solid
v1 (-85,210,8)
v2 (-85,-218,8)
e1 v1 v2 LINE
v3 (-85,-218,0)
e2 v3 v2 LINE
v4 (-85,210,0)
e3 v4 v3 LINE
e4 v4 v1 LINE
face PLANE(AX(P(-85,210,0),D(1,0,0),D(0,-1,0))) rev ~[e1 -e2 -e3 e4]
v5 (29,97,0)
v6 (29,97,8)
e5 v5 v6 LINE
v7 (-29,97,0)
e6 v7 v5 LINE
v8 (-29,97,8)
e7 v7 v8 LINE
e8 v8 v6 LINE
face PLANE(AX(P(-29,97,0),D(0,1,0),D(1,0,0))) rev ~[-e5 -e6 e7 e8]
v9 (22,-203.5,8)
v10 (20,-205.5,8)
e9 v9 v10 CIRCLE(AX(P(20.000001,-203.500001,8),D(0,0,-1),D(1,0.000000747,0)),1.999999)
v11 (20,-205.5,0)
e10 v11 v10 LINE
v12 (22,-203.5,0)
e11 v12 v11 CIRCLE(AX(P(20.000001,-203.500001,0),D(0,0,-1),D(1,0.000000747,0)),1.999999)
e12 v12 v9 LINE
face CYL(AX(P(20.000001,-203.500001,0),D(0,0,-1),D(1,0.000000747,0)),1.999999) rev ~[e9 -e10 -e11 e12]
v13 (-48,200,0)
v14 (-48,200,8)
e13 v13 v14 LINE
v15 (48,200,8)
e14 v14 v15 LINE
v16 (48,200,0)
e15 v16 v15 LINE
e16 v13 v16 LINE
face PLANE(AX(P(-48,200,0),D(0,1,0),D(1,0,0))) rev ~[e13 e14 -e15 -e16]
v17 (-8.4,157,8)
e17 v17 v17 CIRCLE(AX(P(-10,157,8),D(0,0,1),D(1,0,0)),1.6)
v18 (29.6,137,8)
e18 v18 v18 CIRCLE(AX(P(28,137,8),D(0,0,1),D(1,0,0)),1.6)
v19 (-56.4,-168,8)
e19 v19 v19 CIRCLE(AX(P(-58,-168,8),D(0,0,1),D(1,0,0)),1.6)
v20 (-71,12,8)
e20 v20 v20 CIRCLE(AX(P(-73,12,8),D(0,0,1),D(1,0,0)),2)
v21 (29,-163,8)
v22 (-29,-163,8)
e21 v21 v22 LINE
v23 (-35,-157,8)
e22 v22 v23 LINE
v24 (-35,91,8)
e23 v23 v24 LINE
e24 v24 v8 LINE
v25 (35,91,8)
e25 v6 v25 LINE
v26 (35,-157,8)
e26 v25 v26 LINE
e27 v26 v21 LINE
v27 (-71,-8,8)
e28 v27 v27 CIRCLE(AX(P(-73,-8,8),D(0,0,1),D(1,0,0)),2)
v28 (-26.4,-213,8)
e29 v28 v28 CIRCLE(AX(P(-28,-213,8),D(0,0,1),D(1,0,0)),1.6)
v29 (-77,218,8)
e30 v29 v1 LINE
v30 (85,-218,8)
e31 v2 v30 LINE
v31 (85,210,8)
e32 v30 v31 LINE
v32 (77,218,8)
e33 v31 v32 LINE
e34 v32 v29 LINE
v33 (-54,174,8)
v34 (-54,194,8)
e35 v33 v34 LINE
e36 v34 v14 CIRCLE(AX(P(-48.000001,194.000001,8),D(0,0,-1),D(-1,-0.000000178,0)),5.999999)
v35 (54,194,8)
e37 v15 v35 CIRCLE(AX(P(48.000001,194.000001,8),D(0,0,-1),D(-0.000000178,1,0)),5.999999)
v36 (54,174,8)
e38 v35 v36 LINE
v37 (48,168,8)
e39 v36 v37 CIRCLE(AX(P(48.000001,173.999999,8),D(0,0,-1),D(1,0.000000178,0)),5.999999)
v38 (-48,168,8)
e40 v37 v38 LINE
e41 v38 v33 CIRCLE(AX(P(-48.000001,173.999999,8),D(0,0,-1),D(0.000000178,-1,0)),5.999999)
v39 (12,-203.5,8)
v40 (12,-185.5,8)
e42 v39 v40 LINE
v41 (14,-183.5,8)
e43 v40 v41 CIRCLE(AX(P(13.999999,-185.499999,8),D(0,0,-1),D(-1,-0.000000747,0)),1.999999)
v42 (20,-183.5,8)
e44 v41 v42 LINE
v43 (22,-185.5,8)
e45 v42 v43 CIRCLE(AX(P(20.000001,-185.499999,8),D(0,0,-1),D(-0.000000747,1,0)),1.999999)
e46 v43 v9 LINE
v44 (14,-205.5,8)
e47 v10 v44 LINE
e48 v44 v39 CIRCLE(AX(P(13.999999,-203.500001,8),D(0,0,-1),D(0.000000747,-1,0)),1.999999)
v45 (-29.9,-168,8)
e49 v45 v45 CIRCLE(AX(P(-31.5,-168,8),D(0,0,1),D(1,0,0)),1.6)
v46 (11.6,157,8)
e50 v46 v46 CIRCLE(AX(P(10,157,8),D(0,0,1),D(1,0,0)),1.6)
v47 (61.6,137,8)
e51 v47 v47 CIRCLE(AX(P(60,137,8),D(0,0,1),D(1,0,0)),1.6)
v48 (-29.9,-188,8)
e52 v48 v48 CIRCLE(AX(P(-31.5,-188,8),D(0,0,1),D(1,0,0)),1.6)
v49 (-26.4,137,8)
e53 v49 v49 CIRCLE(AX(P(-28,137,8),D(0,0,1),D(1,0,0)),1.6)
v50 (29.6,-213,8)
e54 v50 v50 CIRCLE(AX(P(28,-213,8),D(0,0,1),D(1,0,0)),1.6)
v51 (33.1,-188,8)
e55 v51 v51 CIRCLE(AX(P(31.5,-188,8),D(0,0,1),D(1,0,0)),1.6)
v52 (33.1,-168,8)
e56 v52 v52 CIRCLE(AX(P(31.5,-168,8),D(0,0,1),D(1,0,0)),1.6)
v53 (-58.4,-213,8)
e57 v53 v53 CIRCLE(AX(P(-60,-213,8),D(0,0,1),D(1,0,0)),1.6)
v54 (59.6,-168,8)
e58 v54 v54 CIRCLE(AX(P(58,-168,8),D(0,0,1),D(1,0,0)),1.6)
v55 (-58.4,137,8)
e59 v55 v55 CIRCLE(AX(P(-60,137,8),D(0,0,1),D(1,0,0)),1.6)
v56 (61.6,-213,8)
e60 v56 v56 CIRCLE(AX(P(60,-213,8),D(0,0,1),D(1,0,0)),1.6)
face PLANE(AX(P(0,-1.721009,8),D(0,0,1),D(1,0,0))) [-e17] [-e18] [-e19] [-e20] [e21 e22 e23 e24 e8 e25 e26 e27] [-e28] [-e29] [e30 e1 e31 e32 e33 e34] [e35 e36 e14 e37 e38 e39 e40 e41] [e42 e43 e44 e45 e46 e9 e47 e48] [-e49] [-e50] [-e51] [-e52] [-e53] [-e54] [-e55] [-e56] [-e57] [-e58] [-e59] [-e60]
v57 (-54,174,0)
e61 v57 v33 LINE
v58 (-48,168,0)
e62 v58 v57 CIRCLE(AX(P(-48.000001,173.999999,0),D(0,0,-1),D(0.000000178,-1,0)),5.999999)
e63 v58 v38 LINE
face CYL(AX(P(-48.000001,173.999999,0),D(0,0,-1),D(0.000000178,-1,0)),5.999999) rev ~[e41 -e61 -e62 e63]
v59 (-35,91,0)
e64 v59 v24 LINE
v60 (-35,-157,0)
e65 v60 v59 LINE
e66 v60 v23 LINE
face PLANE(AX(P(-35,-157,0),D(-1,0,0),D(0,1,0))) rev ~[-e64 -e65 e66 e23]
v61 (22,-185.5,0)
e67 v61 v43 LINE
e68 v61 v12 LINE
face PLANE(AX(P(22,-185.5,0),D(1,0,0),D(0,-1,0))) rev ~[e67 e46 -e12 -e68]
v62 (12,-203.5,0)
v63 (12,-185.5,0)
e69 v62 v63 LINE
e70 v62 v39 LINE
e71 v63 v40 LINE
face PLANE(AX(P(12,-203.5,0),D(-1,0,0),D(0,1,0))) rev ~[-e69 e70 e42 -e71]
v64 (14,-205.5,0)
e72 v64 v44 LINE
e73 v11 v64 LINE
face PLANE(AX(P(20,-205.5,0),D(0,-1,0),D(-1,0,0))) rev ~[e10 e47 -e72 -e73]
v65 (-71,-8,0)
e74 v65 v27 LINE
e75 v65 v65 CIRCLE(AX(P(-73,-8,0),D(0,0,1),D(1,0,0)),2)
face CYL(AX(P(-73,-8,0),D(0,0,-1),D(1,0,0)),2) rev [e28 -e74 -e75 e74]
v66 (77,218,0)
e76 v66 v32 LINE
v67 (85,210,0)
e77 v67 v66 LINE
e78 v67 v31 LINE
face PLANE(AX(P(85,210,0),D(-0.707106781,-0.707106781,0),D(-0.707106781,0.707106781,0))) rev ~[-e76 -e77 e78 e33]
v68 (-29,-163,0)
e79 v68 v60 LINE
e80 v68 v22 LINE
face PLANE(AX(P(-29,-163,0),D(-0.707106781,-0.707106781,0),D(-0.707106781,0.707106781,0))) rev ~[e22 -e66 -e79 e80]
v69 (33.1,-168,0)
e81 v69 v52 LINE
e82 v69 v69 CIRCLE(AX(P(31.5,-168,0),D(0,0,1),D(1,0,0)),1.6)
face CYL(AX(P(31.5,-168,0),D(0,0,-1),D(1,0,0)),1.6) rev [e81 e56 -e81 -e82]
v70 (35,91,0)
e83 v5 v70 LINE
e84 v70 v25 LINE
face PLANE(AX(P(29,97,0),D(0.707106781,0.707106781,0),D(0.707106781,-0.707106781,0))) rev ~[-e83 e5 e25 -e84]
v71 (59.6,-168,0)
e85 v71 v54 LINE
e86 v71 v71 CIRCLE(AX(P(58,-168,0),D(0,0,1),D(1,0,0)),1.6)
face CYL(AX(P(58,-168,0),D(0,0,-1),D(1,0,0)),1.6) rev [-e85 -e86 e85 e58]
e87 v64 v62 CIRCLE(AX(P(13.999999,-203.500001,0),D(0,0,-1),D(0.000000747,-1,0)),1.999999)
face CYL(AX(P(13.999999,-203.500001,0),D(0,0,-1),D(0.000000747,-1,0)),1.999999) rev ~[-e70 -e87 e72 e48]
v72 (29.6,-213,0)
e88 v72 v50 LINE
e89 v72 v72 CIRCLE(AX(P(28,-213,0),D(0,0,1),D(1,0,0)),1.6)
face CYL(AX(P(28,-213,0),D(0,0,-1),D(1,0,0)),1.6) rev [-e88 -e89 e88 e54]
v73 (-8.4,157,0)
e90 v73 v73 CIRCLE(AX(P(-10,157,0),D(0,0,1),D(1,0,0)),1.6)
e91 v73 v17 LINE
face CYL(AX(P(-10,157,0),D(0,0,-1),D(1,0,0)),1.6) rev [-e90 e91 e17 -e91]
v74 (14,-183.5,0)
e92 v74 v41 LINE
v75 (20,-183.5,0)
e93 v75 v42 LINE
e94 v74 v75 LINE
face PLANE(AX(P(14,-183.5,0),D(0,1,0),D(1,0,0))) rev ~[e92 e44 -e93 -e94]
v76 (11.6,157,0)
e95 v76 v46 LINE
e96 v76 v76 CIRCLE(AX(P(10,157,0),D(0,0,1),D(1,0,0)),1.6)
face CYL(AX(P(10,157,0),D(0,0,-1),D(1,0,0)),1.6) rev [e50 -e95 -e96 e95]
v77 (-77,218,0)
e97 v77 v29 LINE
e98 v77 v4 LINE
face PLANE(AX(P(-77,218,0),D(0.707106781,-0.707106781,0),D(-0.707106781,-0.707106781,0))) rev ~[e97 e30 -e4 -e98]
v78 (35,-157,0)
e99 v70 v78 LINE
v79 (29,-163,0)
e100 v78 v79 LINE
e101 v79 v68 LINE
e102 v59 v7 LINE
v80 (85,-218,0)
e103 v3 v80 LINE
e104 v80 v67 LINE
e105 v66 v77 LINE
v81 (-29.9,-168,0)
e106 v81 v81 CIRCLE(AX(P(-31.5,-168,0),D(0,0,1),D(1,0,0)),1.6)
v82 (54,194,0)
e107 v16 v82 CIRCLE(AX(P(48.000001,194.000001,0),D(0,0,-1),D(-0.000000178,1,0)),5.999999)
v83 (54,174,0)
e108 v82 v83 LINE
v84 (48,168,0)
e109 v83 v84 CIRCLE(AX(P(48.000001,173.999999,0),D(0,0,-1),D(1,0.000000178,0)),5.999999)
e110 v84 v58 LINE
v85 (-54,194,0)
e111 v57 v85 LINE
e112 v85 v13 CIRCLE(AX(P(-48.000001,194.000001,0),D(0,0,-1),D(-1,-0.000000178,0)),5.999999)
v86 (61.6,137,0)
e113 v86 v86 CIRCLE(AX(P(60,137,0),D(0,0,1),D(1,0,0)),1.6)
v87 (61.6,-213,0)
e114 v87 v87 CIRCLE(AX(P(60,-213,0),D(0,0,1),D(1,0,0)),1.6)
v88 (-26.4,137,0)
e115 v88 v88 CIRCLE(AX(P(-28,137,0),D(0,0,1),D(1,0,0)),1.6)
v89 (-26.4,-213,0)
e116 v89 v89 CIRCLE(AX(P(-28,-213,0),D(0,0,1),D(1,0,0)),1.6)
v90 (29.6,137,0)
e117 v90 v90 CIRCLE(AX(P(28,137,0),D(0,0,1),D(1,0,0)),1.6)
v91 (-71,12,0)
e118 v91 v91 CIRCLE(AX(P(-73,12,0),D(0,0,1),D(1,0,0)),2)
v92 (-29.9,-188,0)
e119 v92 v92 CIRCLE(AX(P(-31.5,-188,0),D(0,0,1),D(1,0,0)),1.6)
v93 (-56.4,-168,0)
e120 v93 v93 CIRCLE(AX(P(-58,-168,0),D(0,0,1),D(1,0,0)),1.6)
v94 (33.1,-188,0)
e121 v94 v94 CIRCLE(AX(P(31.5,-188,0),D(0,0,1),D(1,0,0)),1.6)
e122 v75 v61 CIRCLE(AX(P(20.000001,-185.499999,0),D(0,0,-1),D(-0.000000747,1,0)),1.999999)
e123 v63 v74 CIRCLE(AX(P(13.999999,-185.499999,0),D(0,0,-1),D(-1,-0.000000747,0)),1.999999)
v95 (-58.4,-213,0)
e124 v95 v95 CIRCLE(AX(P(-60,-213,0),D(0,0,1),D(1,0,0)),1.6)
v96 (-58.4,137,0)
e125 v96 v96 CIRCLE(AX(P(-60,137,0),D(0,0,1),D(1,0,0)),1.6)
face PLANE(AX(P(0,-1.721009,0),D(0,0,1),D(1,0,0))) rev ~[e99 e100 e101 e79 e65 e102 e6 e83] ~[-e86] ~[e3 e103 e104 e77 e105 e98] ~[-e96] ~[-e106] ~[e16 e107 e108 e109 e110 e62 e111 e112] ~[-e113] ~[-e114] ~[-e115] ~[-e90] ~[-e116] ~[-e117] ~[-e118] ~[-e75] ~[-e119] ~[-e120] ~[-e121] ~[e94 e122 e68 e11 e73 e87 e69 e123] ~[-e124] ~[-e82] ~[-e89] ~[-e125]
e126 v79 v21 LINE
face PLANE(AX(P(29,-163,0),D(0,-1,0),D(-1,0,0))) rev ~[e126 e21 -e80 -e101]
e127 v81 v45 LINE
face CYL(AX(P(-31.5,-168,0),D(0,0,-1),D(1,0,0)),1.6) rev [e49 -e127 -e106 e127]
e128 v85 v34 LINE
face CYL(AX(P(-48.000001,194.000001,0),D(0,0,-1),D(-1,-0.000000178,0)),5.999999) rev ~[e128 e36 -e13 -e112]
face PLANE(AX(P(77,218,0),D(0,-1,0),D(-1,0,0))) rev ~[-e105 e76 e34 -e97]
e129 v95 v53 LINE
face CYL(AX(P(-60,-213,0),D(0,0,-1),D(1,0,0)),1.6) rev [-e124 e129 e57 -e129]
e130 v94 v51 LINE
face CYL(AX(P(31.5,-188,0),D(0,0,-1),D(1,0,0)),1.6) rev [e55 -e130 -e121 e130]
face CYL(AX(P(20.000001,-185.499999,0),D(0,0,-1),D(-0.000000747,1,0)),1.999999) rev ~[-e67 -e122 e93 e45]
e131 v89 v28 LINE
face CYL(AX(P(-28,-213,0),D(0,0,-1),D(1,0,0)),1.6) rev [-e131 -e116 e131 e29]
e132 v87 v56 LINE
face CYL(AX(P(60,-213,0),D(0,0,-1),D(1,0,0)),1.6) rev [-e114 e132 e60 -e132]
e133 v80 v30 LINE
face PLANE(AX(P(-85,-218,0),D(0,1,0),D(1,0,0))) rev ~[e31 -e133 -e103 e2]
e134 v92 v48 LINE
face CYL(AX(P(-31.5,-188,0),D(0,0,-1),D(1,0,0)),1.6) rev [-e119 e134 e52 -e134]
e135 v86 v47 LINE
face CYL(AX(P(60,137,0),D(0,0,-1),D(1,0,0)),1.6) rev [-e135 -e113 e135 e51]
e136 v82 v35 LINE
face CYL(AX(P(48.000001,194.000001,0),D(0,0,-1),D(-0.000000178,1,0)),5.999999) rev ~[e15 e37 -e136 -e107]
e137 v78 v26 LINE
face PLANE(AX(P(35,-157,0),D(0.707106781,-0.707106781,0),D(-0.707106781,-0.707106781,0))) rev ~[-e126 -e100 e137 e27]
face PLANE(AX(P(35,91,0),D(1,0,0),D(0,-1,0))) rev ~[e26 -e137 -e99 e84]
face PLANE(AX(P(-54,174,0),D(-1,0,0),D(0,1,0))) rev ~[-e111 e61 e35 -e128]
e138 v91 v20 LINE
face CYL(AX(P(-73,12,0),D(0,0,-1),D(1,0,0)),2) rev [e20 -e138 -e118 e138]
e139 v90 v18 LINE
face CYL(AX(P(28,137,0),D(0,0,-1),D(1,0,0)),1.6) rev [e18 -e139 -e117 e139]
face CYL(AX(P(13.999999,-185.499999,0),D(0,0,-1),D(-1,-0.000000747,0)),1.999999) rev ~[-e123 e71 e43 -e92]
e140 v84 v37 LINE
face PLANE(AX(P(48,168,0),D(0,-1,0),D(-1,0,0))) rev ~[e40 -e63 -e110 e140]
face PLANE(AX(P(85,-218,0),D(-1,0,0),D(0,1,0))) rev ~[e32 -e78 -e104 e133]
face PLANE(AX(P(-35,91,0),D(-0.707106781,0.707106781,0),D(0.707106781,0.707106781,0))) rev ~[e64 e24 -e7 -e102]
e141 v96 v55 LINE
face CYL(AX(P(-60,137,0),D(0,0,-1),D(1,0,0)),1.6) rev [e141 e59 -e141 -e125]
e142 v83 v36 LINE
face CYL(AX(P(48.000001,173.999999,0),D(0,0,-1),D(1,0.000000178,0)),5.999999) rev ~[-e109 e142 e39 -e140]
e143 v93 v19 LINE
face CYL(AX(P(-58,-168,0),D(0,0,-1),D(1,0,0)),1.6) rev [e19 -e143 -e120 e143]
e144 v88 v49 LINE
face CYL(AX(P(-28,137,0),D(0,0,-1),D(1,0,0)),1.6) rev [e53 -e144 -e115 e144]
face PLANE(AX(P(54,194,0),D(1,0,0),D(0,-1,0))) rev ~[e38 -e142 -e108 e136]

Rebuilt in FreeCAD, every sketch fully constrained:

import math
import FreeCAD as App
import Part
import Sketcher
from FreeCAD import Vector


def add_polygon(sketch, points):
    """Adds a closed chain of lines whose ends are joined by coincident constraints."""
    first, n = sketch.GeometryCount, len(points)
    for a, b in zip(points, points[1:] + points[:1]):
        sketch.addGeometry(Part.LineSegment(App.Vector(*a, 0), App.Vector(*b, 0)), False)
    for i in range(n):
        sketch.addConstraint(Sketcher.Constraint("Coincident", first + i, 2, first + (i + 1) % n, 1))

doc = App.newDocument("Part")
body = doc.addObject("PartDesign::Body", "Body")

sketch1 = body.newObject("Sketcher::SketchObject", "Sketch")
sketch1.AttachmentSupport = (doc.getObject("XY_Plane"), [""])
sketch1.MapMode = "FlatFace"
add_polygon(sketch1, [(85, -218), (85, 210), (77, 218), (-77, 218), (-85, 210), (-85, -218)])
sketch1.addGeometry(Part.Circle(Vector(-60, -213, 0), Vector(0, 0, 1), 1.6), False)
sketch1.addGeometry(Part.Circle(Vector(-58, -168, 0), Vector(0, 0, 1), 1.6), False)
sketch1.addGeometry(Part.Circle(Vector(-28, -213, 0), Vector(0, 0, 1), 1.6), False)
sketch1.addGeometry(Part.Circle(Vector(-31.5, -188, 0), Vector(0, 0, 1), 1.6), False)
sketch1.addGeometry(Part.Circle(Vector(-31.5, -168, 0), Vector(0, 0, 1), 1.6), False)
sketch1.addGeometry(Part.Circle(Vector(-73, -8, 0), Vector(0, 0, 1), 2), False)
sketch1.addGeometry(Part.LineSegment(Vector(12, -203.5, 0), Vector(12, -185.5, 0)), False)
sketch1.addGeometry(Part.ArcOfCircle(Part.Circle(Vector(14, -185.5, 0), Vector(0, 0, 1), 2), math.radians(90), math.radians(180)), False)
sketch1.addGeometry(Part.LineSegment(Vector(14, -183.5, 0), Vector(20, -183.5, 0)), False)
sketch1.addGeometry(Part.ArcOfCircle(Part.Circle(Vector(20, -185.5, 0), Vector(0, 0, 1), 2), math.radians(0), math.radians(90)), False)
sketch1.addGeometry(Part.LineSegment(Vector(22, -185.5, 0), Vector(22, -203.5, 0)), False)
sketch1.addGeometry(Part.ArcOfCircle(Part.Circle(Vector(20, -203.5, 0), Vector(0, 0, 1), 2), math.radians(-90), math.radians(0)), False)
sketch1.addGeometry(Part.LineSegment(Vector(20, -205.5, 0), Vector(14, -205.5, 0)), False)
sketch1.addGeometry(Part.ArcOfCircle(Part.Circle(Vector(14, -203.5, 0), Vector(0, 0, 1), 2), math.radians(180), math.radians(270)), False)
sketch1.addGeometry(Part.Circle(Vector(28, -213, 0), Vector(0, 0, 1), 1.6), False)
sketch1.addGeometry(Part.Circle(Vector(31.5, -188, 0), Vector(0, 0, 1), 1.6), False)
sketch1.addGeometry(Part.Circle(Vector(31.5, -168, 0), Vector(0, 0, 1), 1.6), False)
sketch1.addGeometry(Part.Circle(Vector(60, -213, 0), Vector(0, 0, 1), 1.6), False)
sketch1.addGeometry(Part.Circle(Vector(58, -168, 0), Vector(0, 0, 1), 1.6), False)
add_polygon(sketch1, [(-35, -157), (-35, 91), (-29, 97), (29, 97), (35, 91), (35, -157), (29, -163), (-29, -163)])
sketch1.addGeometry(Part.Circle(Vector(-73, 12, 0), Vector(0, 0, 1), 2), False)
sketch1.addGeometry(Part.Circle(Vector(-60, 137, 0), Vector(0, 0, 1), 1.6), False)
sketch1.addGeometry(Part.Circle(Vector(-28, 137, 0), Vector(0, 0, 1), 1.6), False)
sketch1.addGeometry(Part.Circle(Vector(-10, 157, 0), Vector(0, 0, 1), 1.6), False)
sketch1.addGeometry(Part.Circle(Vector(10, 157, 0), Vector(0, 0, 1), 1.6), False)
sketch1.addGeometry(Part.LineSegment(Vector(-54, 174, 0), Vector(-54, 194, 0)), False)
sketch1.addGeometry(Part.ArcOfCircle(Part.Circle(Vector(-48, 194, 0), Vector(0, 0, 1), 6), math.radians(90), math.radians(180)), False)
sketch1.addGeometry(Part.LineSegment(Vector(-48, 200, 0), Vector(48, 200, 0)), False)
sketch1.addGeometry(Part.ArcOfCircle(Part.Circle(Vector(48, 194, 0), Vector(0, 0, 1), 6), math.radians(0), math.radians(90)), False)
sketch1.addGeometry(Part.LineSegment(Vector(54, 194, 0), Vector(54, 174, 0)), False)
sketch1.addGeometry(Part.ArcOfCircle(Part.Circle(Vector(48, 174, 0), Vector(0, 0, 1), 6), math.radians(-90), math.radians(0)), False)
sketch1.addGeometry(Part.LineSegment(Vector(48, 168, 0), Vector(-48, 168, 0)), False)
sketch1.addGeometry(Part.ArcOfCircle(Part.Circle(Vector(-48, 174, 0), Vector(0, 0, 1), 6), math.radians(180), math.radians(270)), False)
sketch1.addGeometry(Part.Circle(Vector(28, 137, 0), Vector(0, 0, 1), 1.6), False)
sketch1.addGeometry(Part.Circle(Vector(60, 137, 0), Vector(0, 0, 1), 1.6), False)
sketch1.addConstraint([
    Sketcher.Constraint("Tangent", 12, 2, 13, 2),
    Sketcher.Constraint("Tangent", 13, 1, 14, 1),
    Sketcher.Constraint("Tangent", 14, 2, 15, 2),
    Sketcher.Constraint("Tangent", 15, 1, 16, 1),
    Sketcher.Constraint("Tangent", 16, 2, 17, 2),
    Sketcher.Constraint("Tangent", 17, 1, 18, 1),
    Sketcher.Constraint("Tangent", 18, 2, 19, 2),
    Sketcher.Constraint("Tangent", 19, 1, 12, 1),
    Sketcher.Constraint("Tangent", 38, 2, 39, 2),
    Sketcher.Constraint("Tangent", 39, 1, 40, 1),
    Sketcher.Constraint("Tangent", 40, 2, 41, 2),
    Sketcher.Constraint("Tangent", 41, 1, 42, 1),
    Sketcher.Constraint("Tangent", 42, 2, 43, 2),
    Sketcher.Constraint("Tangent", 43, 1, 44, 1),
    Sketcher.Constraint("Tangent", 44, 2, 45, 2),
    Sketcher.Constraint("Tangent", 45, 1, 38, 1),
    Sketcher.Constraint("Vertical", 0),
    Sketcher.Constraint("Horizontal", 2),
    Sketcher.Constraint("Vertical", 4),
    Sketcher.Constraint("Horizontal", 5),
    Sketcher.Constraint("Vertical", 12),
    Sketcher.Constraint("Horizontal", 14),
    Sketcher.Constraint("Vertical", 16),
    Sketcher.Constraint("Horizontal", 18),
    Sketcher.Constraint("Vertical", 25),
    Sketcher.Constraint("Horizontal", 27),
    Sketcher.Constraint("Vertical", 29),
    Sketcher.Constraint("Horizontal", 31),
    Sketcher.Constraint("Vertical", 38),
    Sketcher.Constraint("Horizontal", 40),
    Sketcher.Constraint("Vertical", 42),
    Sketcher.Constraint("Horizontal", 44),
    Sketcher.Constraint("Equal", 6, 7),
    Sketcher.Constraint("Equal", 7, 8),
    Sketcher.Constraint("Equal", 8, 9),
    Sketcher.Constraint("Equal", 9, 10),
    Sketcher.Constraint("Equal", 11, 13),
    Sketcher.Constraint("Equal", 13, 15),
    Sketcher.Constraint("Equal", 15, 17),
    Sketcher.Constraint("Equal", 17, 19),
    Sketcher.Constraint("Equal", 10, 20),
    Sketcher.Constraint("Equal", 20, 21),
    Sketcher.Constraint("Equal", 21, 22),
    Sketcher.Constraint("Equal", 22, 23),
    Sketcher.Constraint("Equal", 23, 24),
    Sketcher.Constraint("Equal", 19, 33),
    Sketcher.Constraint("Equal", 24, 34),
    Sketcher.Constraint("Equal", 34, 35),
    Sketcher.Constraint("Equal", 35, 36),
    Sketcher.Constraint("Equal", 36, 37),
    Sketcher.Constraint("Equal", 39, 41),
    Sketcher.Constraint("Equal", 41, 43),
    Sketcher.Constraint("Equal", 43, 45),
    Sketcher.Constraint("Equal", 37, 46),
    Sketcher.Constraint("Equal", 46, 47),
    Sketcher.Constraint("Symmetric", 8, 3, 20, 3, -2),
    Sketcher.Constraint("Symmetric", 9, 3, 21, 3, -2),
    Sketcher.Constraint("Symmetric", 10, 3, 22, 3, -2),
    Sketcher.Constraint("Symmetric", 6, 3, 23, 3, -2),
    Sketcher.Constraint("Symmetric", 7, 3, 24, 3, -2),
    Sketcher.Constraint("Symmetric", 36, 3, 37, 3, -2),
    Sketcher.Constraint("Symmetric", 35, 3, 46, 3, -2),
    Sketcher.Constraint("Symmetric", 34, 3, 47, 3, -2),
    Sketcher.Constraint("Symmetric", 0, 2, 3, 2, -2),
    Sketcher.Constraint("Symmetric", 25, 2, 28, 2, -2),
    Sketcher.Constraint("Perpendicular", 1, 3),
    Sketcher.Constraint("Parallel", 3, 26),
    Sketcher.Constraint("Perpendicular", 26, 28),
    Sketcher.Constraint("Perpendicular", 28, 30),
    Sketcher.Constraint("Perpendicular", 30, 32),
    Sketcher.Constraint("Horizontal", 6, 3, 8, 3),
    Sketcher.Constraint("Horizontal", 7, 3, 10, 3),
    Sketcher.Constraint("Horizontal", 34, 3, 35, 3),
    Sketcher.Constraint("Horizontal", 29, 2, 32, 2),
    Sketcher.Constraint("Vertical", 9, 3, 10, 3),
    Sketcher.Constraint("Vertical", 11, 3, 33, 3),
    Sketcher.Constraint("Vertical", 6, 3, 34, 3),
    Sketcher.Constraint("Vertical", 8, 3, 35, 3),
    Sketcher.Constraint("Vertical", 27, 2, 30, 2),
    Sketcher.Constraint("Vertical", 26, 2, 31, 2),
    Sketcher.Constraint("Diameter", 11, 4.0),
    Sketcher.Constraint("Radius", 39, 5.999999),
    Sketcher.Constraint("Diameter", 6, 3.2),
    Sketcher.Constraint("DistanceX", 2, 2, 2, 1, 154.0),
    Sketcher.Constraint("DistanceX", 5, 1, 5, 2, 170.0),
    Sketcher.Constraint("DistanceX", 14, 1, 14, 2, 6.0),
    Sketcher.Constraint("DistanceX", 27, 1, 27, 2, 58.0),
    Sketcher.Constraint("DistanceX", 40, 1, 40, 2, 96.0),
    Sketcher.Constraint("DistanceY", 0, 1, 0, 2, 428.0),
    Sketcher.Constraint("DistanceY", 12, 1, 12, 2, 18.0),
    Sketcher.Constraint("DistanceY", 25, 1, 25, 2, 248.0),
    Sketcher.Constraint("DistanceY", 38, 1, 38, 2, 20.0),
    Sketcher.Constraint("DistanceX", 6, 3, -1, 1, 60.0),
    Sketcher.Constraint("DistanceY", 6, 3, -1, 1, 213.0),
    Sketcher.Constraint("DistanceX", 7, 3, -1, 1, 58.0),
    Sketcher.Constraint("DistanceY", 7, 3, -1, 1, 168.0),
    Sketcher.Constraint("DistanceX", 8, 3, -1, 1, 28.0),
    Sketcher.Constraint("DistanceY", 9, 3, -1, 1, 188.0),
    Sketcher.Constraint("DistanceX", 11, 3, -1, 1, 73.0),
    Sketcher.Constraint("DistanceY", 11, 3, -1, 1, 8.0),
    Sketcher.Constraint("DistanceX", -1, 1, 13, 3, 13.999999),
    Sketcher.Constraint("DistanceY", -1, 1, 33, 3, 12.0),
    Sketcher.Constraint("DistanceY", -1, 1, 34, 3, 137.0),
    Sketcher.Constraint("DistanceX", 36, 3, -1, 1, 10.0),
    Sketcher.Constraint("DistanceY", -1, 1, 36, 3, 157.0),
    Sketcher.Constraint("DistanceX", 39, 3, -1, 1, 48.000001),
    Sketcher.Constraint("DistanceY", -1, 1, 39, 3, 194.000001),
    Sketcher.Constraint("DistanceY", -1, 1, 0, 2, 210.0),
    Sketcher.Constraint("DistanceX", 25, 2, -1, 1, 35.0),
    Sketcher.Constraint("DistanceY", -1, 1, 25, 2, 91.0),
    Sketcher.Constraint("DistanceX", 9, 3, -1, 1, 31.5),
    Sketcher.Constraint("DistanceY", 13, 3, -1, 1, 185.499999),
])
pad1 = body.newObject("PartDesign::Pad", "Pad")
pad1.Profile = sketch1
pad1.Length = 8

doc.recompute()
